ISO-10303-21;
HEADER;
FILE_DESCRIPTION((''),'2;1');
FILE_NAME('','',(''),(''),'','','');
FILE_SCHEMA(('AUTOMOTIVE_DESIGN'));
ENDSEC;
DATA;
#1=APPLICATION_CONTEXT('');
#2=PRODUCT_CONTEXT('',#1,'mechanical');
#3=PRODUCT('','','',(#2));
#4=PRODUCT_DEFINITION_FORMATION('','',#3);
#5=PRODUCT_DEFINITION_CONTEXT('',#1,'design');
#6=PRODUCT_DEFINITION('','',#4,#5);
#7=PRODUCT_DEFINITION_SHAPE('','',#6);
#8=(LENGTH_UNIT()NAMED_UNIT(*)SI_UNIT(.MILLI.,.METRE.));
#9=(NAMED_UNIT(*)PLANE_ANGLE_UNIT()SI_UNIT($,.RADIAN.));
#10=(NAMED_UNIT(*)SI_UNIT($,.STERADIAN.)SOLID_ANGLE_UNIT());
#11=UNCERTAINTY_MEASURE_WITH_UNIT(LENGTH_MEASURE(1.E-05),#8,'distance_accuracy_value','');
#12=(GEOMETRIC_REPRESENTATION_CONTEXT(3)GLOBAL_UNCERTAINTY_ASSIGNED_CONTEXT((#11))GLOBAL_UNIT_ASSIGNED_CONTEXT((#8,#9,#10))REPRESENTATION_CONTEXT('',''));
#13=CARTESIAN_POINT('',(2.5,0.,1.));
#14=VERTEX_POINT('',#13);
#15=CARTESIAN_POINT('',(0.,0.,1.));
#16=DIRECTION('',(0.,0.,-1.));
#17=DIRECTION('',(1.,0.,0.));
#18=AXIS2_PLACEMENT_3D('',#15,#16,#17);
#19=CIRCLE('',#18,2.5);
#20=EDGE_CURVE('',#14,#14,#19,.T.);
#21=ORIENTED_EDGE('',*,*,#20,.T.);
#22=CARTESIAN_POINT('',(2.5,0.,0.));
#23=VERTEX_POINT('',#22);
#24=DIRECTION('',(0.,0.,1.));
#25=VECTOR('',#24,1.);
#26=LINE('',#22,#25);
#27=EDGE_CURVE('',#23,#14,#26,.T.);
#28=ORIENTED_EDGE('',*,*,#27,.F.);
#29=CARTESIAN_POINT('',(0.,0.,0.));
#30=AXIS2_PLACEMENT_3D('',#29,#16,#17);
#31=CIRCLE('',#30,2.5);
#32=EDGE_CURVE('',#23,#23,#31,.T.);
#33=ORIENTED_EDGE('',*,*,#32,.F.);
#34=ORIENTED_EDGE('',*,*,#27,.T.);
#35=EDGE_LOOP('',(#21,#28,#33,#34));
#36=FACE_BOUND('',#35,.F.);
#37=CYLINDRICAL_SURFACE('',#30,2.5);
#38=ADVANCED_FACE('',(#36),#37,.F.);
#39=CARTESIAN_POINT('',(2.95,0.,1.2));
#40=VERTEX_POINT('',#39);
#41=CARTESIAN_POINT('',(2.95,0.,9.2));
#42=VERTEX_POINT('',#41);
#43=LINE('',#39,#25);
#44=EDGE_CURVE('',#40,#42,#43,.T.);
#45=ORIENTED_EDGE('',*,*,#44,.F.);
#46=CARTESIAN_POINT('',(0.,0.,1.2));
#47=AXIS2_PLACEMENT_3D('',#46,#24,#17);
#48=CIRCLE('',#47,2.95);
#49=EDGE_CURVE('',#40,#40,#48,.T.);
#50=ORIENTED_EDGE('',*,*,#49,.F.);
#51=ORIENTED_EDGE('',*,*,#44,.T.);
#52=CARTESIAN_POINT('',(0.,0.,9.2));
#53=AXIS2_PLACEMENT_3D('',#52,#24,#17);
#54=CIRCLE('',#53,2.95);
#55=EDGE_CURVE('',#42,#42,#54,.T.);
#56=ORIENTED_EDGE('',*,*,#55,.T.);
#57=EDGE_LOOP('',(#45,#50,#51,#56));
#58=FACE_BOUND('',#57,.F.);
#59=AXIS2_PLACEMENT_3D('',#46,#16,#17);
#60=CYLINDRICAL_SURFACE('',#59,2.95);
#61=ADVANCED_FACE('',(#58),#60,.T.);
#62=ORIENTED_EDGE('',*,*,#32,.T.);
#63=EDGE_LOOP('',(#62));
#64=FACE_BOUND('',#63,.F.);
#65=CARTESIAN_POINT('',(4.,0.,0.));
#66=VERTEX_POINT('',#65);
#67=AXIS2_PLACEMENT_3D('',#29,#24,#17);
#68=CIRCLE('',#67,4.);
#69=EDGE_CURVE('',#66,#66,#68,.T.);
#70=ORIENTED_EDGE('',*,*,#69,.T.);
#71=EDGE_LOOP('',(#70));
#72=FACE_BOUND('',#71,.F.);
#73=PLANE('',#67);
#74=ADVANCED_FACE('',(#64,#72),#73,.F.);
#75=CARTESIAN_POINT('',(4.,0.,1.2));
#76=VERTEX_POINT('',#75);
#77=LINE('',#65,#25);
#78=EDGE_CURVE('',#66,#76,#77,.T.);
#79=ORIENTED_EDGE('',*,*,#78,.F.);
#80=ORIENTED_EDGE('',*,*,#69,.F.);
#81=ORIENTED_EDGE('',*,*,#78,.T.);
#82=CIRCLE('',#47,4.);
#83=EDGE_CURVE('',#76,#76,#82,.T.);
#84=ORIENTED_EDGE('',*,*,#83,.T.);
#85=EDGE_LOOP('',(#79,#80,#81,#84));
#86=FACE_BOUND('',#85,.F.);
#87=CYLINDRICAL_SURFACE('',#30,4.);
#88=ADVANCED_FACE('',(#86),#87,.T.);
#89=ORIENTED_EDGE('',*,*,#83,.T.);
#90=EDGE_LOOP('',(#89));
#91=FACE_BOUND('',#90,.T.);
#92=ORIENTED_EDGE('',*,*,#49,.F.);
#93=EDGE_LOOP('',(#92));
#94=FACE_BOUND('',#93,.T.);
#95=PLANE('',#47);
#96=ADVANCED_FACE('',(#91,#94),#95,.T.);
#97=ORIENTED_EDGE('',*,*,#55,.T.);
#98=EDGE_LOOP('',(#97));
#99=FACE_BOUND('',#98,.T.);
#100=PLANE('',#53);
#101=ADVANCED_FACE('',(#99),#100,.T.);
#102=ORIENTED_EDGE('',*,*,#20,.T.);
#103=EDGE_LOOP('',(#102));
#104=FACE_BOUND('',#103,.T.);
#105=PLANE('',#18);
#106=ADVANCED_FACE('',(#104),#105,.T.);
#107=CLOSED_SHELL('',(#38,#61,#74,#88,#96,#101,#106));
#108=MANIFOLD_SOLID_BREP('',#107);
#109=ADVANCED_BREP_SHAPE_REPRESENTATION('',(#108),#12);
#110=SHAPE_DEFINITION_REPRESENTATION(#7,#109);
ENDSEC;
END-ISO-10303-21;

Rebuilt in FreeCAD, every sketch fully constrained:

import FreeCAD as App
import Part
import Sketcher
Q = App.Units.Quantity

doc = App.newDocument("Part")
params = doc.addObject("Spreadsheet::Sheet", "Params")
for row, (alias, value) in enumerate([
    ("sketch1_diameter", "8 mm"),
    ("pad1_length", "1.2 mm"),
    ("sketch2_diameter", "5.9 mm"),
    ("pad2_length", "8 mm"),
    ("sketch3_diameter", "5 mm"),
    ("pocket1_length", "1 mm"),
], start=1):
    params.set(f"A{row}", alias)
    params.set(f"B{row}", "=" + value)
    params.setAlias(f"B{row}", alias)

body = doc.addObject("PartDesign::Body", "Body")

# Sketch on XY plane
sketch1 = body.newObject("Sketcher::SketchObject", "Sketch")
sketch1.AttachmentSupport = (doc.getObject("XY_Plane"), [""])
sketch1.MapMode = "FlatFace"
sketch1.addGeometry(Part.Circle(App.Vector(0, 0, 0), App.Vector(0, 0, 1), 4), False)
sketch1.addConstraint([
    Sketcher.Constraint("Coincident", 0, 3, -1, 1),
    Sketcher.Constraint("Diameter", 0, Q("8 mm")),
])
sketch1.setExpression("Constraints[1]", "Params.sketch1_diameter")
pad1 = body.newObject("PartDesign::Pad", "Pad")
pad1.Profile = sketch1
pad1.setExpression("Length", "Params.pad1_length")

# Sketch on XY plane
sketch2 = body.newObject("Sketcher::SketchObject", "Sketch001")
sketch2.AttachmentSupport = (doc.getObject("XY_Plane"), [""])
sketch2.MapMode = "FlatFace"
sketch2.AttachmentOffset = App.Placement(App.Vector(0, 0, 1.2), App.Rotation())
sketch2.addGeometry(Part.Circle(App.Vector(0, 0, 0), App.Vector(0, 0, 1), 3), False)
sketch2.addConstraint([
    Sketcher.Constraint("Coincident", 0, 3, -1, 1),
    Sketcher.Constraint("Diameter", 0, Q("5.9 mm")),
])
sketch2.setExpression("Constraints[1]", "Params.sketch2_diameter")
pad2 = body.newObject("PartDesign::Pad", "Pad001")
pad2.Profile = sketch2
pad2.setExpression("Length", "Params.pad2_length")

# Sketch on XY plane
sketch3 = body.newObject("Sketcher::SketchObject", "Sketch002")
sketch3.AttachmentSupport = (doc.getObject("XY_Plane"), [""])
sketch3.MapMode = "FlatFace"
sketch3.addGeometry(Part.Circle(App.Vector(0, 0, 0), App.Vector(0, 0, 1), 2.5), False)
sketch3.addConstraint([
    Sketcher.Constraint("Coincident", 0, 3, -1, 1),
    Sketcher.Constraint("Diameter", 0, Q("5 mm")),
])
sketch3.setExpression("Constraints[1]", "Params.sketch3_diameter")
pocket1 = body.newObject("PartDesign::Pocket", "Pocket")
pocket1.Profile = sketch3
pocket1.setExpression("Length", "Params.pocket1_length")
pocket1.Reversed = True

doc.recompute()
